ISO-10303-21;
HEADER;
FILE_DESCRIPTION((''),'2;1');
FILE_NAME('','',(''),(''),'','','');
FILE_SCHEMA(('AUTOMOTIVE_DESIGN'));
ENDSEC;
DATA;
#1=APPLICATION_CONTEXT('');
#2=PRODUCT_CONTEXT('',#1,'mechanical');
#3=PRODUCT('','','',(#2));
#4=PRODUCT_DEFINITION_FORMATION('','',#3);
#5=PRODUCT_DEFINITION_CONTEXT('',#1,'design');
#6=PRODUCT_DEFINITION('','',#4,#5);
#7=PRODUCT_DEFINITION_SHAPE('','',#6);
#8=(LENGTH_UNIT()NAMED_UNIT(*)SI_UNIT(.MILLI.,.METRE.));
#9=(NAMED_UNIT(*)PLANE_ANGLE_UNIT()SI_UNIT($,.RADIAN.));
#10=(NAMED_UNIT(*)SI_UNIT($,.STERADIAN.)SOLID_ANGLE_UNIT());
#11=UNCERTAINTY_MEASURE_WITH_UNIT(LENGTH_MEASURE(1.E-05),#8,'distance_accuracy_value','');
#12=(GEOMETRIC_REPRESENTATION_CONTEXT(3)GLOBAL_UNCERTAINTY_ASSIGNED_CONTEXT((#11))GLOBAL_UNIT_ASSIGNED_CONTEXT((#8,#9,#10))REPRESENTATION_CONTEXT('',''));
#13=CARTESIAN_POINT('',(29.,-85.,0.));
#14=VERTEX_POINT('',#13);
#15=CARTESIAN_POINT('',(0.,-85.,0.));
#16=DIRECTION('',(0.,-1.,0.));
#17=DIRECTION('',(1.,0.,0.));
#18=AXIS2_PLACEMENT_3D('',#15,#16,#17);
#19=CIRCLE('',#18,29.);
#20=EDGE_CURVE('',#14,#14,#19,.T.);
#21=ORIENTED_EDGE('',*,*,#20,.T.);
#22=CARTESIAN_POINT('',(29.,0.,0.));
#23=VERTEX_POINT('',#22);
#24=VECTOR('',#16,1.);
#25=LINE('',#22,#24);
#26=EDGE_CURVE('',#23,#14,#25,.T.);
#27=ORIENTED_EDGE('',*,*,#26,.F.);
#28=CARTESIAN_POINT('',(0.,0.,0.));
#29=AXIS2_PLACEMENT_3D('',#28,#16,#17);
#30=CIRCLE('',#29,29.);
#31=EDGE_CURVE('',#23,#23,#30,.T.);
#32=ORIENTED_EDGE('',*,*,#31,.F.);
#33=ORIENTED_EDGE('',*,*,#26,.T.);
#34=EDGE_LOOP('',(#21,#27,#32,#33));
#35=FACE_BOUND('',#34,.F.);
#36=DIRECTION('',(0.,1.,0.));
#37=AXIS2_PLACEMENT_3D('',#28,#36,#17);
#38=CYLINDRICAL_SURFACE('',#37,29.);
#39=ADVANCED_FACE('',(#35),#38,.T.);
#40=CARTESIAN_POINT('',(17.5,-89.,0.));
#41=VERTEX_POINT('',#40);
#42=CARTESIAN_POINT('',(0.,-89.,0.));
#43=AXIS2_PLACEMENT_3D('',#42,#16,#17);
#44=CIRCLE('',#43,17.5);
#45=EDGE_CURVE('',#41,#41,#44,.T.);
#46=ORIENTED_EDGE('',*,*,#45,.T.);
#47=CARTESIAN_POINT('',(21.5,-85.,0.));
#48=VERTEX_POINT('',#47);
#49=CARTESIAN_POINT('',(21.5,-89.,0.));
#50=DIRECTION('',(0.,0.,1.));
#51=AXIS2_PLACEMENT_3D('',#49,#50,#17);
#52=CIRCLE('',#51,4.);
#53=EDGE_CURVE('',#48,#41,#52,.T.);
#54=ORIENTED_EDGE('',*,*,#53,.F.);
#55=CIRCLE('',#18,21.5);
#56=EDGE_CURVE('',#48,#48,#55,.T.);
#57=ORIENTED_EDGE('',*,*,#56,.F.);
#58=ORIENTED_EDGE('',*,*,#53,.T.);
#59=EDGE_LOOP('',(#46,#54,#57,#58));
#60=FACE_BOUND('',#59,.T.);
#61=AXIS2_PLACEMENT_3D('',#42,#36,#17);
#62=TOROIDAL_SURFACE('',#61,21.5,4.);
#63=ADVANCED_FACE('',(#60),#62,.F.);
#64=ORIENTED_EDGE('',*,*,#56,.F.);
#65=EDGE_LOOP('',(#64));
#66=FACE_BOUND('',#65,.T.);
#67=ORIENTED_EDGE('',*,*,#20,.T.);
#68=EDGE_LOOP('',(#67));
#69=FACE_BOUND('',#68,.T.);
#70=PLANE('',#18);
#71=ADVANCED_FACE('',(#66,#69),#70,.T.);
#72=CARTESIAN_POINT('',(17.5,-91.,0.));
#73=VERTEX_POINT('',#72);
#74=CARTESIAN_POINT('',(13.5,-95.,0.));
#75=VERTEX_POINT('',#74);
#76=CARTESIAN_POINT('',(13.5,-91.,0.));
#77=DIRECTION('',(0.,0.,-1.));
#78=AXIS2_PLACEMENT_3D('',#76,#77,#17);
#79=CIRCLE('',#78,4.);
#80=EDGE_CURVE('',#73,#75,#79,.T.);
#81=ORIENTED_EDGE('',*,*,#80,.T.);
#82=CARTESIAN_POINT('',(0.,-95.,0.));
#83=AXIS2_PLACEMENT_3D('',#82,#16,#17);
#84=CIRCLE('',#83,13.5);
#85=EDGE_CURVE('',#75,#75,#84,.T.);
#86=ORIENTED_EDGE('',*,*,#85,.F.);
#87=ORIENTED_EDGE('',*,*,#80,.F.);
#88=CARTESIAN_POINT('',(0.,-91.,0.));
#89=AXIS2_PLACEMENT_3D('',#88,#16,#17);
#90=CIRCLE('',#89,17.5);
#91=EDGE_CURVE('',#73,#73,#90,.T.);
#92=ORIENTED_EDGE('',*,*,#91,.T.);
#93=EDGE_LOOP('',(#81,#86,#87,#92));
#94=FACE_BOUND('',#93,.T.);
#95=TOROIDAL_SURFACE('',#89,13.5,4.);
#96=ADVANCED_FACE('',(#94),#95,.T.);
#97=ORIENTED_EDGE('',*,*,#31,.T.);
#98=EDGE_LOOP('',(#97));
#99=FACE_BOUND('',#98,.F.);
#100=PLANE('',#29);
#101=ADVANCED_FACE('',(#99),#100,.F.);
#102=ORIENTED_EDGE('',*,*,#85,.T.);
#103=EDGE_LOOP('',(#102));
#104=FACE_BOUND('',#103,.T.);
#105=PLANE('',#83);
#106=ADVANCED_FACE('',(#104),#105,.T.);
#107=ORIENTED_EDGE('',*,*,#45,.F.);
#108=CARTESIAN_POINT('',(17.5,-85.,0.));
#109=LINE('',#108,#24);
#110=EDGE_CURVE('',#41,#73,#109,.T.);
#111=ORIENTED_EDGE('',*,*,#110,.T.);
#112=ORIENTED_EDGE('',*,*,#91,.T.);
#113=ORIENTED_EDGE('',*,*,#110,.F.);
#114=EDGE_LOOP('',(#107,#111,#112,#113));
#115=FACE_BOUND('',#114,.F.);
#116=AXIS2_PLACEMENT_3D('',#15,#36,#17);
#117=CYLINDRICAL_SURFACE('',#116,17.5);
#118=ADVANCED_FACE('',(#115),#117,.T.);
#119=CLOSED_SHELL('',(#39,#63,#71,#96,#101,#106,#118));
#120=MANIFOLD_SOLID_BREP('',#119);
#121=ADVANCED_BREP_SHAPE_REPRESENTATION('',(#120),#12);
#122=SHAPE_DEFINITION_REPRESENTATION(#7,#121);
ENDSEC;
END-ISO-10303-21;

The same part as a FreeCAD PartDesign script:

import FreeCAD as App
import Part
import Sketcher


def edges_at(feature, points):
    """Names of the edges that pass closest to the given points."""
    edges = feature.Shape.Edges
    near = lambda p: min(range(len(edges)), key=lambda i: edges[i].distToShape(Part.Vertex(*p))[0])
    return sorted({f"Edge{near(p) + 1}" for p in points})

doc = App.newDocument("Part")
body = doc.addObject("PartDesign::Body", "Body")

sketch1 = doc.addObject("Sketcher::SketchObject", "Sketch")
body.addObject(sketch1)
sketch1.AttachmentSupport = (doc.XZ_Plane, [""])
sketch1.MapMode = "FlatFace"
sketch1.addGeometry(Part.Circle(App.Vector(0, 0, 0), App.Vector(0, 0, 1), 29), False)
sketch1.addConstraint(Sketcher.Constraint("Coincident", 0, 3, -1, 1))
sketch1.addConstraint(Sketcher.Constraint("Diameter", 0, 58.0))
pad1 = doc.addObject("PartDesign::Pad", "Pad")
body.addObject(pad1)
pad1.Profile = sketch1
pad1.Length = 85

sketch2 = doc.addObject("Sketcher::SketchObject", "Sketch001")
body.addObject(sketch2)
sketch2.AttachmentSupport = (doc.XZ_Plane, [""])
sketch2.MapMode = "FlatFace"
sketch2.AttachmentOffset = App.Placement(App.Vector(0, 0, 85), App.Rotation())
sketch2.addGeometry(Part.Circle(App.Vector(0, 0, 0), App.Vector(0, 0, 1), 18), False)
sketch2.addConstraint(Sketcher.Constraint("Coincident", 0, 3, -1, 1))
sketch2.addConstraint(Sketcher.Constraint("Diameter", 0, 35.0))
pad2 = doc.addObject("PartDesign::Pad", "Pad001")
body.addObject(pad2)
pad2.Profile = sketch2
pad2.Length = 10
doc.recompute()

fillet = doc.addObject("PartDesign::Fillet", "Fillet")
body.addObject(fillet)
fillet.Base = (pad2, edges_at(pad2, [(-17.5, -85, 0)]))
fillet.Radius = 4
doc.recompute()

fillet2 = doc.addObject("PartDesign::Fillet", "Fillet001")
body.addObject(fillet2)
fillet2.Base = (fillet, edges_at(fillet, [(-17.5, -95, 0)]))
fillet2.Radius = 4

doc.recompute()
